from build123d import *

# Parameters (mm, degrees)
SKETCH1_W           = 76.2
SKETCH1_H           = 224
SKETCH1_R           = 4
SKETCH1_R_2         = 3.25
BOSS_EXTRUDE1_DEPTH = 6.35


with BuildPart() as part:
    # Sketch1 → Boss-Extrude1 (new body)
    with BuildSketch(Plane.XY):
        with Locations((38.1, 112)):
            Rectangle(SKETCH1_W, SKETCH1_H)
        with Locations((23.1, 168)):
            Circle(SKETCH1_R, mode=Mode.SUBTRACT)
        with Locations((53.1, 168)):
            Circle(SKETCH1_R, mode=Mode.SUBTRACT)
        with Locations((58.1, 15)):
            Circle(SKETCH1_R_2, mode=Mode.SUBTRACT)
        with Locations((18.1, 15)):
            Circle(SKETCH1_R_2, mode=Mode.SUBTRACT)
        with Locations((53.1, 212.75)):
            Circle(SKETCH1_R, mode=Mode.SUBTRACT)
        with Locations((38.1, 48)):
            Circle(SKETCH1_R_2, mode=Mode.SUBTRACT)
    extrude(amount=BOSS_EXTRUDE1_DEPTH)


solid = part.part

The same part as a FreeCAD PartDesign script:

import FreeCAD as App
import Part
import Sketcher
from FreeCAD import Vector
Q = App.Units.Quantity


def add_polygon(sketch, points):
    """Adds a closed chain of lines whose ends are joined by coincident constraints."""
    first, n = sketch.GeometryCount, len(points)
    for a, b in zip(points, points[1:] + points[:1]):
        sketch.addGeometry(Part.LineSegment(App.Vector(*a, 0), App.Vector(*b, 0)), False)
    for i in range(n):
        sketch.addConstraint(Sketcher.Constraint("Coincident", first + i, 2, first + (i + 1) % n, 1))

doc = App.newDocument("Part")
params = doc.addObject("Spreadsheet::Sheet", "Params")
for row, (alias, value) in enumerate([
    ("sketch1_diameter", "8 mm"),
    ("sketch1_diameter2", "6.5 mm"),
    ("sketch1_height", "224 mm"),
    ("sketch1_width", "76.2 mm"),
    ("pad1_length", "6.35 mm"),
], start=1):
    params.set(f"A{row}", alias)
    params.set(f"B{row}", "=" + value)
    params.setAlias(f"B{row}", alias)

body = doc.addObject("PartDesign::Body", "Body")

sketch1 = body.newObject("Sketcher::SketchObject", "Sketch")
sketch1.AttachmentSupport = (doc.getObject("XY_Plane"), [""])
sketch1.MapMode = "FlatFace"
add_polygon(sketch1, [(0, 224), (0, 0), (76.2, 0), (76.2, 224)])
sketch1.addGeometry(Part.Circle(Vector(18.1, 15, 0), Vector(0, 0, 1), 3.25), False)
sketch1.addGeometry(Part.Circle(Vector(38.1, 48, 0), Vector(0, 0, 1), 3.25), False)
sketch1.addGeometry(Part.Circle(Vector(58.1, 15, 0), Vector(0, 0, 1), 3.25), False)
sketch1.addGeometry(Part.Circle(Vector(23.1, 168, 0), Vector(0, 0, 1), 4), False)
sketch1.addGeometry(Part.Circle(Vector(53.1, 168, 0), Vector(0, 0, 1), 4), False)
sketch1.addGeometry(Part.Circle(Vector(53.1, 212.75, 0), Vector(0, 0, 1), 4), False)
sketch1.addConstraint([
    Sketcher.Constraint("Vertical", 0),
    Sketcher.Constraint("Horizontal", 1),
    Sketcher.Constraint("Vertical", 2),
    Sketcher.Constraint("Horizontal", 3),
    Sketcher.Constraint("Coincident", 0, 2, -1, 1),
    Sketcher.Constraint("Equal", 4, 5),
    Sketcher.Constraint("Equal", 5, 6),
    Sketcher.Constraint("Equal", 7, 8),
    Sketcher.Constraint("Equal", 8, 9),
    Sketcher.Constraint("Horizontal", 4, 3, 6, 3),
    Sketcher.Constraint("Horizontal", 7, 3, 8, 3),
    Sketcher.Constraint("Vertical", 8, 3, 9, 3),
    Sketcher.Constraint("Diameter", 7, Q("8 mm")),
    Sketcher.Constraint("Diameter", 4, Q("6.5 mm")),
    Sketcher.Constraint("DistanceY", 0, 2, 0, 1, Q("224 mm")),
    Sketcher.Constraint("DistanceX", 1, 1, 1, 2, Q("76.2 mm")),
    Sketcher.Constraint("DistanceY", -1, 1, 4, 3, Q("15 mm")),
    Sketcher.Constraint("DistanceY", -1, 1, 5, 3, Q("48 mm")),
    Sketcher.Constraint("DistanceY", -1, 1, 7, 3, Q("168 mm")),
    Sketcher.Constraint("DistanceX", 4, 3, 5, 3, Q("20 mm")),
    Sketcher.Constraint("DistanceX", 5, 3, 6, 3, Q("20 mm")),
    Sketcher.Constraint("DistanceX", 7, 3, 5, 3, Q("15 mm")),
    Sketcher.Constraint("DistanceX", 7, 3, 8, 3, Q("30 mm")),
    Sketcher.Constraint("DistanceX", -1, 1, 4, 3, Q("18.1 mm")),
    Sketcher.Constraint("DistanceY", -1, 1, 9, 3, Q("212.75 mm")),
])
sketch1.setExpression("Constraints[16]", "Params.sketch1_diameter")
sketch1.setExpression("Constraints[17]", "Params.sketch1_diameter2")
sketch1.setExpression("Constraints[18]", "Params.sketch1_height")
sketch1.setExpression("Constraints[19]", "Params.sketch1_width")
pad1 = body.newObject("PartDesign::Pad", "Pad")
pad1.Profile = sketch1
pad1.setExpression("Length", "Params.pad1_length")

doc.recompute()
